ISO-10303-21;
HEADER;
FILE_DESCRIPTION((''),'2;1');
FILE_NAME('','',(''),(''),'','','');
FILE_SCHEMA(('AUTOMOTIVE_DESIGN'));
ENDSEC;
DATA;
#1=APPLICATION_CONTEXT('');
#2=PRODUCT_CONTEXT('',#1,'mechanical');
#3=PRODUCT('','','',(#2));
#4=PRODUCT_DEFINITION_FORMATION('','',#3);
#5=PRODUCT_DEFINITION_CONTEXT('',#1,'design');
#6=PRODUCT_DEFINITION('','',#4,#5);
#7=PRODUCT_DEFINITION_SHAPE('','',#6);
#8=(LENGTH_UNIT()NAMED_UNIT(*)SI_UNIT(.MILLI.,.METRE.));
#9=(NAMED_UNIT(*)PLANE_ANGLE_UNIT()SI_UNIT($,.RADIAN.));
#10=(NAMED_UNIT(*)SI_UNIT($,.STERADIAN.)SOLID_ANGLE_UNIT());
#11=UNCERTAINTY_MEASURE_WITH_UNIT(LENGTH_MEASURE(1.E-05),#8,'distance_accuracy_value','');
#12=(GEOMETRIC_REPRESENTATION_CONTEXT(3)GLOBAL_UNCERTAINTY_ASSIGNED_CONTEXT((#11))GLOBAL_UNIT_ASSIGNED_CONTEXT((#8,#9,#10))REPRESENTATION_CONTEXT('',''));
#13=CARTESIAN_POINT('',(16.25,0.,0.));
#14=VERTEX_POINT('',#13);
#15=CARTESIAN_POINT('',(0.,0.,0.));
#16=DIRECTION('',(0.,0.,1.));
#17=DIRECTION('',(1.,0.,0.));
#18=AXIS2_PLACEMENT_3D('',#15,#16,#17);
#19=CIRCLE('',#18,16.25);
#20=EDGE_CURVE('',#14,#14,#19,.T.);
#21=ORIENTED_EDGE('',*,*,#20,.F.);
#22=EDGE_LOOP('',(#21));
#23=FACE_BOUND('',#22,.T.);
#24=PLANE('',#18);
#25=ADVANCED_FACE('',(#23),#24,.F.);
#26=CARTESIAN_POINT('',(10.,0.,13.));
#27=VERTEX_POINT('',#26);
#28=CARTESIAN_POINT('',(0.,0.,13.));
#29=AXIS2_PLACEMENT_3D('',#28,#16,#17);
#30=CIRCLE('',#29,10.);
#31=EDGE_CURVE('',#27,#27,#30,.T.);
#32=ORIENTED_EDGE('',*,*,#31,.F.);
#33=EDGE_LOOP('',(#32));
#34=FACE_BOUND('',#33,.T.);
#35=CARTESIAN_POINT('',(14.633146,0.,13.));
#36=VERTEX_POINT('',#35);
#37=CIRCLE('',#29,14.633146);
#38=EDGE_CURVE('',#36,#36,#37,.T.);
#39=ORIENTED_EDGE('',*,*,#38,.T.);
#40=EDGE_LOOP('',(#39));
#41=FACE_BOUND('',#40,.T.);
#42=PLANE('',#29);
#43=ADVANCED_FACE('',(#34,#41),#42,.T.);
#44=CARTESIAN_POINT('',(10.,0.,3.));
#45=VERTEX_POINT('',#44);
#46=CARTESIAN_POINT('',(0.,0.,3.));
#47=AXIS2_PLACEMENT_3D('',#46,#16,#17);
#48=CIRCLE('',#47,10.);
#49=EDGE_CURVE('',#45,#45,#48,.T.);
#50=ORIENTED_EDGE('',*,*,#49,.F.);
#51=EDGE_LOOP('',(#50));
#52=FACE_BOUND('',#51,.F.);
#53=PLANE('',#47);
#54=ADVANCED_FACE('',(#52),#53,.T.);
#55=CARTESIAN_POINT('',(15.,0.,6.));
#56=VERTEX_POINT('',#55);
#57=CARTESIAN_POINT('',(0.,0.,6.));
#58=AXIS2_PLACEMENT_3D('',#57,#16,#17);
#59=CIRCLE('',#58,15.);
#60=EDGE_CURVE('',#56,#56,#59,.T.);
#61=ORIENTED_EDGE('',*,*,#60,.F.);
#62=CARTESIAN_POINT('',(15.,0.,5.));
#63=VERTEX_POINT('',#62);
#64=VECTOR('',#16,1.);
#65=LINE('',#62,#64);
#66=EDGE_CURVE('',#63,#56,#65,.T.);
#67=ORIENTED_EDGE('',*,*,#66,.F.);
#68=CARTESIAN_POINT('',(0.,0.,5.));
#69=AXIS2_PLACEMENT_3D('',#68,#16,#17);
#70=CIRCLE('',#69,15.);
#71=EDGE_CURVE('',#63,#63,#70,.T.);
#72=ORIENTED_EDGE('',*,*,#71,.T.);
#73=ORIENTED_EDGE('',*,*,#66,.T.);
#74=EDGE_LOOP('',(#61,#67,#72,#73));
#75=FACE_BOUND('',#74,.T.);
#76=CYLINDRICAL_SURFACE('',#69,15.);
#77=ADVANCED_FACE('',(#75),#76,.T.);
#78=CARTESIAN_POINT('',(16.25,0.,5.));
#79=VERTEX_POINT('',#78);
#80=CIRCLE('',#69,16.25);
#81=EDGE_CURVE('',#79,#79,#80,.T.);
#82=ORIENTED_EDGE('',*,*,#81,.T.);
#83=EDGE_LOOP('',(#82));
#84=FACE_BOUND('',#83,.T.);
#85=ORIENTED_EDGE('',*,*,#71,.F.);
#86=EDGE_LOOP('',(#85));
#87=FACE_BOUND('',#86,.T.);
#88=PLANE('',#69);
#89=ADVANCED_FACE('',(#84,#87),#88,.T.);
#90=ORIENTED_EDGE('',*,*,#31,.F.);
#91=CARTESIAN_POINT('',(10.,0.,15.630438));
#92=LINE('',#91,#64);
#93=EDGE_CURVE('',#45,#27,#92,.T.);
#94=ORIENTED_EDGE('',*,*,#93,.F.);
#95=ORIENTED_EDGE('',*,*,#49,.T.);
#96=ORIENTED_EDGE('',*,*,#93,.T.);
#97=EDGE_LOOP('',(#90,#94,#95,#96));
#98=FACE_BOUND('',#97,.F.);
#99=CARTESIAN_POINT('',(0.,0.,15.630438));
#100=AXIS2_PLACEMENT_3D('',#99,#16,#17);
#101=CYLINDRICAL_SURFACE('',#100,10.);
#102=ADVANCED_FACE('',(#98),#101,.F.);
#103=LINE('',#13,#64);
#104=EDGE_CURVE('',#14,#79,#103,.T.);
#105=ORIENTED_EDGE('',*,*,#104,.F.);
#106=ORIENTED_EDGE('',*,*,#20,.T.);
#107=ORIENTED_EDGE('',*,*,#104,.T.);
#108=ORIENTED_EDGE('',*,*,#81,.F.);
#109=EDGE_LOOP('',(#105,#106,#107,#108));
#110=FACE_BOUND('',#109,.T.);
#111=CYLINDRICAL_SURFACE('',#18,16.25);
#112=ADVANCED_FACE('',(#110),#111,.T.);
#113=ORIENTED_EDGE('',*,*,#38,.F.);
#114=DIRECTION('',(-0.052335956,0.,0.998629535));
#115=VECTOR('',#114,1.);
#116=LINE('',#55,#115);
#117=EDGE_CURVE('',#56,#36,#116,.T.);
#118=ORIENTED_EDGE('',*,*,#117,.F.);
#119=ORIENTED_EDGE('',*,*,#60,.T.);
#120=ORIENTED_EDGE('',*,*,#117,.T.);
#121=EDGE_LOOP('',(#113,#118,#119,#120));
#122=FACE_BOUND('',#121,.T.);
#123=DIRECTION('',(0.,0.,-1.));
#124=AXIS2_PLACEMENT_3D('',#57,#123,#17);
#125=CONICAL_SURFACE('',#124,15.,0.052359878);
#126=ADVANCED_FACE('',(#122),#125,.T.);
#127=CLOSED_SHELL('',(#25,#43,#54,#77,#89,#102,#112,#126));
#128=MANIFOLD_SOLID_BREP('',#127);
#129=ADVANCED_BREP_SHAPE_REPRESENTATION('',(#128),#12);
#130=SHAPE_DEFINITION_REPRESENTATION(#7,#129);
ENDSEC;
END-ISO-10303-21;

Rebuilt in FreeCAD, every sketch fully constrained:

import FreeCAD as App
import Part
import Sketcher
from FreeCAD import Vector
Q = App.Units.Quantity


def edges_at(feature, points):
    """Names of the edges that pass closest to the given points."""
    edges = feature.Shape.Edges
    near = lambda p: min(range(len(edges)), key=lambda i: edges[i].distToShape(Part.Vertex(*p))[0])
    return sorted({f"Edge{near(p) + 1}" for p in points})

doc = App.newDocument("Part")
body = doc.addObject("PartDesign::Body", "Body")

# Sketch on XZ plane
sketch1 = doc.addObject("Sketcher::SketchObject", "Sketch")
body.addObject(sketch1)
sketch1.AttachmentSupport = (doc.XZ_Plane, [""])
sketch1.MapMode = "FlatFace"
sketch1.addGeometry([
    Part.LineSegment(Vector(0, 0, 0), Vector(16.2, 0, 0)),  # 0
    Part.LineSegment(Vector(16.2, 0, 0), Vector(16.2, 5, 0)),  # 1
    Part.LineSegment(Vector(16.2, 5, 0), Vector(15, 5, 0)),  # 2
    Part.LineSegment(Vector(15, 5, 0), Vector(15, 13, 0)),  # 3
    Part.LineSegment(Vector(15, 13, 0), Vector(0, 13, 0)),  # 4
    Part.LineSegment(Vector(0, 13, 0), Vector(0, 0, 0)),  # 5
], False)
sketch1.addConstraint([
    Sketcher.Constraint("Coincident", 0, 2, 1, 1),
    Sketcher.Constraint("Coincident", 1, 2, 2, 1),
    Sketcher.Constraint("Coincident", 2, 2, 3, 1),
    Sketcher.Constraint("Coincident", 3, 2, 4, 1),
    Sketcher.Constraint("Coincident", 4, 2, 5, 1),
    Sketcher.Constraint("Coincident", 5, 2, 0, 1),
    Sketcher.Constraint("Horizontal", 0),
    Sketcher.Constraint("Vertical", 1),
    Sketcher.Constraint("Horizontal", 2),
    Sketcher.Constraint("Vertical", 3),
    Sketcher.Constraint("Horizontal", 4),
    Sketcher.Constraint("Vertical", 5),
    Sketcher.Constraint("Coincident", 5, 2, -1, 1),
    Sketcher.Constraint("DistanceX", 4, 2, 4, 1, Q("15 mm")),
    Sketcher.Constraint("DistanceY", 1, 1, 1, 2, Q("5 mm")),
    Sketcher.Constraint("DistanceY", 3, 1, 3, 2, Q("8 mm")),
    Sketcher.Constraint("DistanceX", 0, 1, 0, 2, Q("16.25 mm")),
])
revolution = doc.addObject("PartDesign::Revolution", "Revolution")
body.addObject(revolution)
revolution.Profile = sketch1
revolution.ReferenceAxis = (sketch1, ["V_Axis"])
revolution.Angle = 360
doc.recompute()

chamfer = doc.addObject("PartDesign::Chamfer", "Chamfer")
body.addObject(chamfer)
chamfer.Base = (revolution, edges_at(revolution, [(-15, 0, 13)]))
chamfer.ChamferType = "Distance and Angle"
chamfer.Size = 7
chamfer.Angle = 3

# Sketch on XZ plane
sketch2 = doc.addObject("Sketcher::SketchObject", "Sketch001")
body.addObject(sketch2)
sketch2.AttachmentSupport = (doc.XZ_Plane, [""])
sketch2.MapMode = "FlatFace"
sketch2.addGeometry([
    Part.LineSegment(Vector(0, 28, 0), Vector(0, 3, 0)),
    Part.LineSegment(Vector(0, 3, 0), Vector(10, 3, 0)),
    Part.LineSegment(Vector(10, 3, 0), Vector(10, 28, 0)),
    Part.LineSegment(Vector(10, 28, 0), Vector(0, 28, 0)),
], False)
sketch2.addConstraint([
    Sketcher.Constraint("Coincident", 0, 2, 1, 1),
    Sketcher.Constraint("Coincident", 1, 2, 2, 1),
    Sketcher.Constraint("Coincident", 2, 2, 3, 1),
    Sketcher.Constraint("Coincident", 3, 2, 0, 1),
    Sketcher.Constraint("Vertical", 0),
    Sketcher.Constraint("Horizontal", 1),
    Sketcher.Constraint("Vertical", 2),
    Sketcher.Constraint("Horizontal", 3),
    Sketcher.Constraint("PointOnObject", 0, 2, -2),
    Sketcher.Constraint("DistanceX", 1, 1, 1, 2, Q("10 mm")),
    Sketcher.Constraint("DistanceY", -1, 1, 0, 2, Q("3 mm")),
    Sketcher.Constraint("DistanceY", 0, 2, 0, 1, Q("25.260876 mm")),
])
groove = doc.addObject("PartDesign::Groove", "Groove")
body.addObject(groove)
groove.Profile = sketch2
groove.ReferenceAxis = (sketch2, ["V_Axis"])
groove.Angle = 360

doc.recompute()
